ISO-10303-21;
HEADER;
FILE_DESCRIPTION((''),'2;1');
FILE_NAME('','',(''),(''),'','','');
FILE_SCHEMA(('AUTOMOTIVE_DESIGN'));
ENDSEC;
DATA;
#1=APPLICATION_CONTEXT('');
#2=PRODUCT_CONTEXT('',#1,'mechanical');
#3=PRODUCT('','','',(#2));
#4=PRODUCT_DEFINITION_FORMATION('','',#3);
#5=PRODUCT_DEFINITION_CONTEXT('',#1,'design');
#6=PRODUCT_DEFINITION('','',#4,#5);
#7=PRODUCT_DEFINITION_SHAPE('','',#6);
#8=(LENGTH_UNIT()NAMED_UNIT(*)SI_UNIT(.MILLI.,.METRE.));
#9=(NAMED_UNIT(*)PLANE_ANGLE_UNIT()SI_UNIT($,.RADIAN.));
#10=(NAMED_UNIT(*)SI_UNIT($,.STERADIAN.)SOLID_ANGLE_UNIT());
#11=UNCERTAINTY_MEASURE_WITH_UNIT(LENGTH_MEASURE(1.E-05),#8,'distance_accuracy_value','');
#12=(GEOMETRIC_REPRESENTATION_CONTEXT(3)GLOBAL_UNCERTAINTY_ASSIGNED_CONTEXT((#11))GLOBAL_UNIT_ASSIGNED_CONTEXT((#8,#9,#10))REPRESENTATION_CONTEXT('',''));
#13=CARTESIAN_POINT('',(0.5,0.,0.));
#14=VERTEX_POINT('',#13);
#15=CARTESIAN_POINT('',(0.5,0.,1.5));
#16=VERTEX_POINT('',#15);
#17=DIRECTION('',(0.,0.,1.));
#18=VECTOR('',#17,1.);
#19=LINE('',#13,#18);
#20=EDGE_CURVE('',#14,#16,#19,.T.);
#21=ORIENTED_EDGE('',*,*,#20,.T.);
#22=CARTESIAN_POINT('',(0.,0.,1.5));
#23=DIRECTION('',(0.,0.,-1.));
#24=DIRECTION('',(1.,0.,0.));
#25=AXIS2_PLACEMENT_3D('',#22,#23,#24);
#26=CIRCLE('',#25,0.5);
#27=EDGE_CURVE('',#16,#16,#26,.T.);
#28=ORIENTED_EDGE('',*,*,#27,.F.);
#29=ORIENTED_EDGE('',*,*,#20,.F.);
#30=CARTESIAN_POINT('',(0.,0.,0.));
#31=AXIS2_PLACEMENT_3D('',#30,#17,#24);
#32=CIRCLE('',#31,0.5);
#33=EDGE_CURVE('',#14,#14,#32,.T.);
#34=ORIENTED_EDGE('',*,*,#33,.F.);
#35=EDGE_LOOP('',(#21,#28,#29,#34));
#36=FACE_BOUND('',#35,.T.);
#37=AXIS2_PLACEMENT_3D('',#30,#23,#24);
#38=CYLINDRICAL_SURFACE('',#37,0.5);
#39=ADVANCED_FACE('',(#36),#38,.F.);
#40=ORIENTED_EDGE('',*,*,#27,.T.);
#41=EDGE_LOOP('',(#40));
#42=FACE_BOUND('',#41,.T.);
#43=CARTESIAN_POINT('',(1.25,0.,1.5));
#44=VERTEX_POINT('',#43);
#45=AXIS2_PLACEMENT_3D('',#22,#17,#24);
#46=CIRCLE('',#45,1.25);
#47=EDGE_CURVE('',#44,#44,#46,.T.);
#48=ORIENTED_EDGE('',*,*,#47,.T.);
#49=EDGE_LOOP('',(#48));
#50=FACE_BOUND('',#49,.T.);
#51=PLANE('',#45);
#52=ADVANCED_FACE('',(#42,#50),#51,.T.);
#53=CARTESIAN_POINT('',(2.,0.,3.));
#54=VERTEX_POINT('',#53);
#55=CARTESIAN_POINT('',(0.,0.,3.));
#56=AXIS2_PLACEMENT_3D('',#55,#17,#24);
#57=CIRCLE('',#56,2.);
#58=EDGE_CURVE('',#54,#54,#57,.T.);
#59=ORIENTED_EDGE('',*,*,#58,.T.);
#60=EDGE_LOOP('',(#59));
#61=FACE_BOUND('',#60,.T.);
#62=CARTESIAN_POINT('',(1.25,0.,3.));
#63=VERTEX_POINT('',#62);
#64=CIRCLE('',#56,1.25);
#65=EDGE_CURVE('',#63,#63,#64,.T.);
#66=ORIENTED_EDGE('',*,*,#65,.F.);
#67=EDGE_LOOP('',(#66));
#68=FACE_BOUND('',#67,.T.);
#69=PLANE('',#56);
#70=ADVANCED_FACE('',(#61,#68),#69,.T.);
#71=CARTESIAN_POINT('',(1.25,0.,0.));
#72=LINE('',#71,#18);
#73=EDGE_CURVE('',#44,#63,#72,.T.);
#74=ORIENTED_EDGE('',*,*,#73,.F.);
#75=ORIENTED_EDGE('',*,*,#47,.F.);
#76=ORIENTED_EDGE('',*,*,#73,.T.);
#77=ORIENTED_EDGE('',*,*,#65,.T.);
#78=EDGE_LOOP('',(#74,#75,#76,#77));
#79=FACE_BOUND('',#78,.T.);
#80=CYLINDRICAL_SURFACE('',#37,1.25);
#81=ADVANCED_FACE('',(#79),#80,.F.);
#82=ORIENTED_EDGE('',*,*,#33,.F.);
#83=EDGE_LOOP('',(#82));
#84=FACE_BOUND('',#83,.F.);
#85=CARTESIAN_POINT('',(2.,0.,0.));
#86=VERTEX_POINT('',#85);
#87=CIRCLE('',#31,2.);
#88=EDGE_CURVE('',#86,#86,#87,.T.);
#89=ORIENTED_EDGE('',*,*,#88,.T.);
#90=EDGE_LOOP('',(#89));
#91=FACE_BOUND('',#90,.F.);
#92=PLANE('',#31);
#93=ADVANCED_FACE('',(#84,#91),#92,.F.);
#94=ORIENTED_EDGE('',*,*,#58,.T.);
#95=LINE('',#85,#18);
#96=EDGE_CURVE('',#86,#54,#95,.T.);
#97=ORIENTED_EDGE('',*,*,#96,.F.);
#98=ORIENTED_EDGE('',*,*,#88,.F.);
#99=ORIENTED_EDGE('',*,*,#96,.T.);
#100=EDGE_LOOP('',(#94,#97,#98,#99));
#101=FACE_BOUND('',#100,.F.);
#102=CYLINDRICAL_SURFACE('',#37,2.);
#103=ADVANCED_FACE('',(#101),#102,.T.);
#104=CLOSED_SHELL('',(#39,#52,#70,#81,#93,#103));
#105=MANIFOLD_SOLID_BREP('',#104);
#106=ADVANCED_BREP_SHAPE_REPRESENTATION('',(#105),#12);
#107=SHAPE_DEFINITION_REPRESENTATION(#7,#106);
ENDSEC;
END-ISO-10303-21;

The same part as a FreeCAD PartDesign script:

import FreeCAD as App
import Part
import Sketcher

V = App.Vector
Q = App.Units.Quantity

doc = App.newDocument("Part")
body = doc.addObject("PartDesign::Body", "Body")

sketch1 = doc.addObject("Sketcher::SketchObject", "Sketch")
body.addObject(sketch1)
sketch1.AttachmentSupport = (doc.XY_Plane, [""])
sketch1.MapMode = "FlatFace"
sketch1.addGeometry(Part.Circle(V(0, 0, 0), V(0, 0, 1), 2), False)
sketch1.addGeometry(Part.Circle(V(0, 0, 0), V(0, 0, 1), 1.2), False)
sketch1.addConstraint(Sketcher.Constraint("Coincident", 0, 3, -1, 1))
sketch1.addConstraint(Sketcher.Constraint("Coincident", 1, 3, -1, 1))
sketch1.addConstraint(Sketcher.Constraint("Diameter", 0, Q("4 mm")))
sketch1.addConstraint(Sketcher.Constraint("Diameter", 1, Q("2.5 mm")))
pad1 = doc.addObject("PartDesign::Pad", "Pad")
body.addObject(pad1)
pad1.Profile = sketch1
pad1.Length = 3

sketch2 = doc.addObject("Sketcher::SketchObject", "Sketch001")
body.addObject(sketch2)
sketch2.AttachmentSupport = (doc.XY_Plane, [""])
sketch2.MapMode = "FlatFace"
sketch2.addGeometry(Part.Circle(V(0, 0, 0), V(0, 0, 1), 1.2), False)
sketch2.addConstraint(Sketcher.Constraint("Coincident", 0, 3, -1, 1))
sketch2.addConstraint(Sketcher.Constraint("Diameter", 0, Q("2.5 mm")))
pad2 = doc.addObject("PartDesign::Pad", "Pad001")
body.addObject(pad2)
pad2.Profile = sketch2
pad2.Length = 1.5

sketch3 = doc.addObject("Sketcher::SketchObject", "Sketch002")
body.addObject(sketch3)
sketch3.AttachmentSupport = (doc.XY_Plane, [""])
sketch3.MapMode = "FlatFace"
sketch3.addGeometry(Part.Circle(V(0, 0, 0), V(0, 0, 1), 0.5), False)
sketch3.addConstraint(Sketcher.Constraint("Coincident", 0, 3, -1, 1))
sketch3.addConstraint(Sketcher.Constraint("Diameter", 0, Q("1 mm")))
pocket1 = doc.addObject("PartDesign::Pocket", "Pocket")
body.addObject(pocket1)
pocket1.Profile = sketch3
pocket1.Length = 25
pocket1.Reversed = True

doc.recompute()
